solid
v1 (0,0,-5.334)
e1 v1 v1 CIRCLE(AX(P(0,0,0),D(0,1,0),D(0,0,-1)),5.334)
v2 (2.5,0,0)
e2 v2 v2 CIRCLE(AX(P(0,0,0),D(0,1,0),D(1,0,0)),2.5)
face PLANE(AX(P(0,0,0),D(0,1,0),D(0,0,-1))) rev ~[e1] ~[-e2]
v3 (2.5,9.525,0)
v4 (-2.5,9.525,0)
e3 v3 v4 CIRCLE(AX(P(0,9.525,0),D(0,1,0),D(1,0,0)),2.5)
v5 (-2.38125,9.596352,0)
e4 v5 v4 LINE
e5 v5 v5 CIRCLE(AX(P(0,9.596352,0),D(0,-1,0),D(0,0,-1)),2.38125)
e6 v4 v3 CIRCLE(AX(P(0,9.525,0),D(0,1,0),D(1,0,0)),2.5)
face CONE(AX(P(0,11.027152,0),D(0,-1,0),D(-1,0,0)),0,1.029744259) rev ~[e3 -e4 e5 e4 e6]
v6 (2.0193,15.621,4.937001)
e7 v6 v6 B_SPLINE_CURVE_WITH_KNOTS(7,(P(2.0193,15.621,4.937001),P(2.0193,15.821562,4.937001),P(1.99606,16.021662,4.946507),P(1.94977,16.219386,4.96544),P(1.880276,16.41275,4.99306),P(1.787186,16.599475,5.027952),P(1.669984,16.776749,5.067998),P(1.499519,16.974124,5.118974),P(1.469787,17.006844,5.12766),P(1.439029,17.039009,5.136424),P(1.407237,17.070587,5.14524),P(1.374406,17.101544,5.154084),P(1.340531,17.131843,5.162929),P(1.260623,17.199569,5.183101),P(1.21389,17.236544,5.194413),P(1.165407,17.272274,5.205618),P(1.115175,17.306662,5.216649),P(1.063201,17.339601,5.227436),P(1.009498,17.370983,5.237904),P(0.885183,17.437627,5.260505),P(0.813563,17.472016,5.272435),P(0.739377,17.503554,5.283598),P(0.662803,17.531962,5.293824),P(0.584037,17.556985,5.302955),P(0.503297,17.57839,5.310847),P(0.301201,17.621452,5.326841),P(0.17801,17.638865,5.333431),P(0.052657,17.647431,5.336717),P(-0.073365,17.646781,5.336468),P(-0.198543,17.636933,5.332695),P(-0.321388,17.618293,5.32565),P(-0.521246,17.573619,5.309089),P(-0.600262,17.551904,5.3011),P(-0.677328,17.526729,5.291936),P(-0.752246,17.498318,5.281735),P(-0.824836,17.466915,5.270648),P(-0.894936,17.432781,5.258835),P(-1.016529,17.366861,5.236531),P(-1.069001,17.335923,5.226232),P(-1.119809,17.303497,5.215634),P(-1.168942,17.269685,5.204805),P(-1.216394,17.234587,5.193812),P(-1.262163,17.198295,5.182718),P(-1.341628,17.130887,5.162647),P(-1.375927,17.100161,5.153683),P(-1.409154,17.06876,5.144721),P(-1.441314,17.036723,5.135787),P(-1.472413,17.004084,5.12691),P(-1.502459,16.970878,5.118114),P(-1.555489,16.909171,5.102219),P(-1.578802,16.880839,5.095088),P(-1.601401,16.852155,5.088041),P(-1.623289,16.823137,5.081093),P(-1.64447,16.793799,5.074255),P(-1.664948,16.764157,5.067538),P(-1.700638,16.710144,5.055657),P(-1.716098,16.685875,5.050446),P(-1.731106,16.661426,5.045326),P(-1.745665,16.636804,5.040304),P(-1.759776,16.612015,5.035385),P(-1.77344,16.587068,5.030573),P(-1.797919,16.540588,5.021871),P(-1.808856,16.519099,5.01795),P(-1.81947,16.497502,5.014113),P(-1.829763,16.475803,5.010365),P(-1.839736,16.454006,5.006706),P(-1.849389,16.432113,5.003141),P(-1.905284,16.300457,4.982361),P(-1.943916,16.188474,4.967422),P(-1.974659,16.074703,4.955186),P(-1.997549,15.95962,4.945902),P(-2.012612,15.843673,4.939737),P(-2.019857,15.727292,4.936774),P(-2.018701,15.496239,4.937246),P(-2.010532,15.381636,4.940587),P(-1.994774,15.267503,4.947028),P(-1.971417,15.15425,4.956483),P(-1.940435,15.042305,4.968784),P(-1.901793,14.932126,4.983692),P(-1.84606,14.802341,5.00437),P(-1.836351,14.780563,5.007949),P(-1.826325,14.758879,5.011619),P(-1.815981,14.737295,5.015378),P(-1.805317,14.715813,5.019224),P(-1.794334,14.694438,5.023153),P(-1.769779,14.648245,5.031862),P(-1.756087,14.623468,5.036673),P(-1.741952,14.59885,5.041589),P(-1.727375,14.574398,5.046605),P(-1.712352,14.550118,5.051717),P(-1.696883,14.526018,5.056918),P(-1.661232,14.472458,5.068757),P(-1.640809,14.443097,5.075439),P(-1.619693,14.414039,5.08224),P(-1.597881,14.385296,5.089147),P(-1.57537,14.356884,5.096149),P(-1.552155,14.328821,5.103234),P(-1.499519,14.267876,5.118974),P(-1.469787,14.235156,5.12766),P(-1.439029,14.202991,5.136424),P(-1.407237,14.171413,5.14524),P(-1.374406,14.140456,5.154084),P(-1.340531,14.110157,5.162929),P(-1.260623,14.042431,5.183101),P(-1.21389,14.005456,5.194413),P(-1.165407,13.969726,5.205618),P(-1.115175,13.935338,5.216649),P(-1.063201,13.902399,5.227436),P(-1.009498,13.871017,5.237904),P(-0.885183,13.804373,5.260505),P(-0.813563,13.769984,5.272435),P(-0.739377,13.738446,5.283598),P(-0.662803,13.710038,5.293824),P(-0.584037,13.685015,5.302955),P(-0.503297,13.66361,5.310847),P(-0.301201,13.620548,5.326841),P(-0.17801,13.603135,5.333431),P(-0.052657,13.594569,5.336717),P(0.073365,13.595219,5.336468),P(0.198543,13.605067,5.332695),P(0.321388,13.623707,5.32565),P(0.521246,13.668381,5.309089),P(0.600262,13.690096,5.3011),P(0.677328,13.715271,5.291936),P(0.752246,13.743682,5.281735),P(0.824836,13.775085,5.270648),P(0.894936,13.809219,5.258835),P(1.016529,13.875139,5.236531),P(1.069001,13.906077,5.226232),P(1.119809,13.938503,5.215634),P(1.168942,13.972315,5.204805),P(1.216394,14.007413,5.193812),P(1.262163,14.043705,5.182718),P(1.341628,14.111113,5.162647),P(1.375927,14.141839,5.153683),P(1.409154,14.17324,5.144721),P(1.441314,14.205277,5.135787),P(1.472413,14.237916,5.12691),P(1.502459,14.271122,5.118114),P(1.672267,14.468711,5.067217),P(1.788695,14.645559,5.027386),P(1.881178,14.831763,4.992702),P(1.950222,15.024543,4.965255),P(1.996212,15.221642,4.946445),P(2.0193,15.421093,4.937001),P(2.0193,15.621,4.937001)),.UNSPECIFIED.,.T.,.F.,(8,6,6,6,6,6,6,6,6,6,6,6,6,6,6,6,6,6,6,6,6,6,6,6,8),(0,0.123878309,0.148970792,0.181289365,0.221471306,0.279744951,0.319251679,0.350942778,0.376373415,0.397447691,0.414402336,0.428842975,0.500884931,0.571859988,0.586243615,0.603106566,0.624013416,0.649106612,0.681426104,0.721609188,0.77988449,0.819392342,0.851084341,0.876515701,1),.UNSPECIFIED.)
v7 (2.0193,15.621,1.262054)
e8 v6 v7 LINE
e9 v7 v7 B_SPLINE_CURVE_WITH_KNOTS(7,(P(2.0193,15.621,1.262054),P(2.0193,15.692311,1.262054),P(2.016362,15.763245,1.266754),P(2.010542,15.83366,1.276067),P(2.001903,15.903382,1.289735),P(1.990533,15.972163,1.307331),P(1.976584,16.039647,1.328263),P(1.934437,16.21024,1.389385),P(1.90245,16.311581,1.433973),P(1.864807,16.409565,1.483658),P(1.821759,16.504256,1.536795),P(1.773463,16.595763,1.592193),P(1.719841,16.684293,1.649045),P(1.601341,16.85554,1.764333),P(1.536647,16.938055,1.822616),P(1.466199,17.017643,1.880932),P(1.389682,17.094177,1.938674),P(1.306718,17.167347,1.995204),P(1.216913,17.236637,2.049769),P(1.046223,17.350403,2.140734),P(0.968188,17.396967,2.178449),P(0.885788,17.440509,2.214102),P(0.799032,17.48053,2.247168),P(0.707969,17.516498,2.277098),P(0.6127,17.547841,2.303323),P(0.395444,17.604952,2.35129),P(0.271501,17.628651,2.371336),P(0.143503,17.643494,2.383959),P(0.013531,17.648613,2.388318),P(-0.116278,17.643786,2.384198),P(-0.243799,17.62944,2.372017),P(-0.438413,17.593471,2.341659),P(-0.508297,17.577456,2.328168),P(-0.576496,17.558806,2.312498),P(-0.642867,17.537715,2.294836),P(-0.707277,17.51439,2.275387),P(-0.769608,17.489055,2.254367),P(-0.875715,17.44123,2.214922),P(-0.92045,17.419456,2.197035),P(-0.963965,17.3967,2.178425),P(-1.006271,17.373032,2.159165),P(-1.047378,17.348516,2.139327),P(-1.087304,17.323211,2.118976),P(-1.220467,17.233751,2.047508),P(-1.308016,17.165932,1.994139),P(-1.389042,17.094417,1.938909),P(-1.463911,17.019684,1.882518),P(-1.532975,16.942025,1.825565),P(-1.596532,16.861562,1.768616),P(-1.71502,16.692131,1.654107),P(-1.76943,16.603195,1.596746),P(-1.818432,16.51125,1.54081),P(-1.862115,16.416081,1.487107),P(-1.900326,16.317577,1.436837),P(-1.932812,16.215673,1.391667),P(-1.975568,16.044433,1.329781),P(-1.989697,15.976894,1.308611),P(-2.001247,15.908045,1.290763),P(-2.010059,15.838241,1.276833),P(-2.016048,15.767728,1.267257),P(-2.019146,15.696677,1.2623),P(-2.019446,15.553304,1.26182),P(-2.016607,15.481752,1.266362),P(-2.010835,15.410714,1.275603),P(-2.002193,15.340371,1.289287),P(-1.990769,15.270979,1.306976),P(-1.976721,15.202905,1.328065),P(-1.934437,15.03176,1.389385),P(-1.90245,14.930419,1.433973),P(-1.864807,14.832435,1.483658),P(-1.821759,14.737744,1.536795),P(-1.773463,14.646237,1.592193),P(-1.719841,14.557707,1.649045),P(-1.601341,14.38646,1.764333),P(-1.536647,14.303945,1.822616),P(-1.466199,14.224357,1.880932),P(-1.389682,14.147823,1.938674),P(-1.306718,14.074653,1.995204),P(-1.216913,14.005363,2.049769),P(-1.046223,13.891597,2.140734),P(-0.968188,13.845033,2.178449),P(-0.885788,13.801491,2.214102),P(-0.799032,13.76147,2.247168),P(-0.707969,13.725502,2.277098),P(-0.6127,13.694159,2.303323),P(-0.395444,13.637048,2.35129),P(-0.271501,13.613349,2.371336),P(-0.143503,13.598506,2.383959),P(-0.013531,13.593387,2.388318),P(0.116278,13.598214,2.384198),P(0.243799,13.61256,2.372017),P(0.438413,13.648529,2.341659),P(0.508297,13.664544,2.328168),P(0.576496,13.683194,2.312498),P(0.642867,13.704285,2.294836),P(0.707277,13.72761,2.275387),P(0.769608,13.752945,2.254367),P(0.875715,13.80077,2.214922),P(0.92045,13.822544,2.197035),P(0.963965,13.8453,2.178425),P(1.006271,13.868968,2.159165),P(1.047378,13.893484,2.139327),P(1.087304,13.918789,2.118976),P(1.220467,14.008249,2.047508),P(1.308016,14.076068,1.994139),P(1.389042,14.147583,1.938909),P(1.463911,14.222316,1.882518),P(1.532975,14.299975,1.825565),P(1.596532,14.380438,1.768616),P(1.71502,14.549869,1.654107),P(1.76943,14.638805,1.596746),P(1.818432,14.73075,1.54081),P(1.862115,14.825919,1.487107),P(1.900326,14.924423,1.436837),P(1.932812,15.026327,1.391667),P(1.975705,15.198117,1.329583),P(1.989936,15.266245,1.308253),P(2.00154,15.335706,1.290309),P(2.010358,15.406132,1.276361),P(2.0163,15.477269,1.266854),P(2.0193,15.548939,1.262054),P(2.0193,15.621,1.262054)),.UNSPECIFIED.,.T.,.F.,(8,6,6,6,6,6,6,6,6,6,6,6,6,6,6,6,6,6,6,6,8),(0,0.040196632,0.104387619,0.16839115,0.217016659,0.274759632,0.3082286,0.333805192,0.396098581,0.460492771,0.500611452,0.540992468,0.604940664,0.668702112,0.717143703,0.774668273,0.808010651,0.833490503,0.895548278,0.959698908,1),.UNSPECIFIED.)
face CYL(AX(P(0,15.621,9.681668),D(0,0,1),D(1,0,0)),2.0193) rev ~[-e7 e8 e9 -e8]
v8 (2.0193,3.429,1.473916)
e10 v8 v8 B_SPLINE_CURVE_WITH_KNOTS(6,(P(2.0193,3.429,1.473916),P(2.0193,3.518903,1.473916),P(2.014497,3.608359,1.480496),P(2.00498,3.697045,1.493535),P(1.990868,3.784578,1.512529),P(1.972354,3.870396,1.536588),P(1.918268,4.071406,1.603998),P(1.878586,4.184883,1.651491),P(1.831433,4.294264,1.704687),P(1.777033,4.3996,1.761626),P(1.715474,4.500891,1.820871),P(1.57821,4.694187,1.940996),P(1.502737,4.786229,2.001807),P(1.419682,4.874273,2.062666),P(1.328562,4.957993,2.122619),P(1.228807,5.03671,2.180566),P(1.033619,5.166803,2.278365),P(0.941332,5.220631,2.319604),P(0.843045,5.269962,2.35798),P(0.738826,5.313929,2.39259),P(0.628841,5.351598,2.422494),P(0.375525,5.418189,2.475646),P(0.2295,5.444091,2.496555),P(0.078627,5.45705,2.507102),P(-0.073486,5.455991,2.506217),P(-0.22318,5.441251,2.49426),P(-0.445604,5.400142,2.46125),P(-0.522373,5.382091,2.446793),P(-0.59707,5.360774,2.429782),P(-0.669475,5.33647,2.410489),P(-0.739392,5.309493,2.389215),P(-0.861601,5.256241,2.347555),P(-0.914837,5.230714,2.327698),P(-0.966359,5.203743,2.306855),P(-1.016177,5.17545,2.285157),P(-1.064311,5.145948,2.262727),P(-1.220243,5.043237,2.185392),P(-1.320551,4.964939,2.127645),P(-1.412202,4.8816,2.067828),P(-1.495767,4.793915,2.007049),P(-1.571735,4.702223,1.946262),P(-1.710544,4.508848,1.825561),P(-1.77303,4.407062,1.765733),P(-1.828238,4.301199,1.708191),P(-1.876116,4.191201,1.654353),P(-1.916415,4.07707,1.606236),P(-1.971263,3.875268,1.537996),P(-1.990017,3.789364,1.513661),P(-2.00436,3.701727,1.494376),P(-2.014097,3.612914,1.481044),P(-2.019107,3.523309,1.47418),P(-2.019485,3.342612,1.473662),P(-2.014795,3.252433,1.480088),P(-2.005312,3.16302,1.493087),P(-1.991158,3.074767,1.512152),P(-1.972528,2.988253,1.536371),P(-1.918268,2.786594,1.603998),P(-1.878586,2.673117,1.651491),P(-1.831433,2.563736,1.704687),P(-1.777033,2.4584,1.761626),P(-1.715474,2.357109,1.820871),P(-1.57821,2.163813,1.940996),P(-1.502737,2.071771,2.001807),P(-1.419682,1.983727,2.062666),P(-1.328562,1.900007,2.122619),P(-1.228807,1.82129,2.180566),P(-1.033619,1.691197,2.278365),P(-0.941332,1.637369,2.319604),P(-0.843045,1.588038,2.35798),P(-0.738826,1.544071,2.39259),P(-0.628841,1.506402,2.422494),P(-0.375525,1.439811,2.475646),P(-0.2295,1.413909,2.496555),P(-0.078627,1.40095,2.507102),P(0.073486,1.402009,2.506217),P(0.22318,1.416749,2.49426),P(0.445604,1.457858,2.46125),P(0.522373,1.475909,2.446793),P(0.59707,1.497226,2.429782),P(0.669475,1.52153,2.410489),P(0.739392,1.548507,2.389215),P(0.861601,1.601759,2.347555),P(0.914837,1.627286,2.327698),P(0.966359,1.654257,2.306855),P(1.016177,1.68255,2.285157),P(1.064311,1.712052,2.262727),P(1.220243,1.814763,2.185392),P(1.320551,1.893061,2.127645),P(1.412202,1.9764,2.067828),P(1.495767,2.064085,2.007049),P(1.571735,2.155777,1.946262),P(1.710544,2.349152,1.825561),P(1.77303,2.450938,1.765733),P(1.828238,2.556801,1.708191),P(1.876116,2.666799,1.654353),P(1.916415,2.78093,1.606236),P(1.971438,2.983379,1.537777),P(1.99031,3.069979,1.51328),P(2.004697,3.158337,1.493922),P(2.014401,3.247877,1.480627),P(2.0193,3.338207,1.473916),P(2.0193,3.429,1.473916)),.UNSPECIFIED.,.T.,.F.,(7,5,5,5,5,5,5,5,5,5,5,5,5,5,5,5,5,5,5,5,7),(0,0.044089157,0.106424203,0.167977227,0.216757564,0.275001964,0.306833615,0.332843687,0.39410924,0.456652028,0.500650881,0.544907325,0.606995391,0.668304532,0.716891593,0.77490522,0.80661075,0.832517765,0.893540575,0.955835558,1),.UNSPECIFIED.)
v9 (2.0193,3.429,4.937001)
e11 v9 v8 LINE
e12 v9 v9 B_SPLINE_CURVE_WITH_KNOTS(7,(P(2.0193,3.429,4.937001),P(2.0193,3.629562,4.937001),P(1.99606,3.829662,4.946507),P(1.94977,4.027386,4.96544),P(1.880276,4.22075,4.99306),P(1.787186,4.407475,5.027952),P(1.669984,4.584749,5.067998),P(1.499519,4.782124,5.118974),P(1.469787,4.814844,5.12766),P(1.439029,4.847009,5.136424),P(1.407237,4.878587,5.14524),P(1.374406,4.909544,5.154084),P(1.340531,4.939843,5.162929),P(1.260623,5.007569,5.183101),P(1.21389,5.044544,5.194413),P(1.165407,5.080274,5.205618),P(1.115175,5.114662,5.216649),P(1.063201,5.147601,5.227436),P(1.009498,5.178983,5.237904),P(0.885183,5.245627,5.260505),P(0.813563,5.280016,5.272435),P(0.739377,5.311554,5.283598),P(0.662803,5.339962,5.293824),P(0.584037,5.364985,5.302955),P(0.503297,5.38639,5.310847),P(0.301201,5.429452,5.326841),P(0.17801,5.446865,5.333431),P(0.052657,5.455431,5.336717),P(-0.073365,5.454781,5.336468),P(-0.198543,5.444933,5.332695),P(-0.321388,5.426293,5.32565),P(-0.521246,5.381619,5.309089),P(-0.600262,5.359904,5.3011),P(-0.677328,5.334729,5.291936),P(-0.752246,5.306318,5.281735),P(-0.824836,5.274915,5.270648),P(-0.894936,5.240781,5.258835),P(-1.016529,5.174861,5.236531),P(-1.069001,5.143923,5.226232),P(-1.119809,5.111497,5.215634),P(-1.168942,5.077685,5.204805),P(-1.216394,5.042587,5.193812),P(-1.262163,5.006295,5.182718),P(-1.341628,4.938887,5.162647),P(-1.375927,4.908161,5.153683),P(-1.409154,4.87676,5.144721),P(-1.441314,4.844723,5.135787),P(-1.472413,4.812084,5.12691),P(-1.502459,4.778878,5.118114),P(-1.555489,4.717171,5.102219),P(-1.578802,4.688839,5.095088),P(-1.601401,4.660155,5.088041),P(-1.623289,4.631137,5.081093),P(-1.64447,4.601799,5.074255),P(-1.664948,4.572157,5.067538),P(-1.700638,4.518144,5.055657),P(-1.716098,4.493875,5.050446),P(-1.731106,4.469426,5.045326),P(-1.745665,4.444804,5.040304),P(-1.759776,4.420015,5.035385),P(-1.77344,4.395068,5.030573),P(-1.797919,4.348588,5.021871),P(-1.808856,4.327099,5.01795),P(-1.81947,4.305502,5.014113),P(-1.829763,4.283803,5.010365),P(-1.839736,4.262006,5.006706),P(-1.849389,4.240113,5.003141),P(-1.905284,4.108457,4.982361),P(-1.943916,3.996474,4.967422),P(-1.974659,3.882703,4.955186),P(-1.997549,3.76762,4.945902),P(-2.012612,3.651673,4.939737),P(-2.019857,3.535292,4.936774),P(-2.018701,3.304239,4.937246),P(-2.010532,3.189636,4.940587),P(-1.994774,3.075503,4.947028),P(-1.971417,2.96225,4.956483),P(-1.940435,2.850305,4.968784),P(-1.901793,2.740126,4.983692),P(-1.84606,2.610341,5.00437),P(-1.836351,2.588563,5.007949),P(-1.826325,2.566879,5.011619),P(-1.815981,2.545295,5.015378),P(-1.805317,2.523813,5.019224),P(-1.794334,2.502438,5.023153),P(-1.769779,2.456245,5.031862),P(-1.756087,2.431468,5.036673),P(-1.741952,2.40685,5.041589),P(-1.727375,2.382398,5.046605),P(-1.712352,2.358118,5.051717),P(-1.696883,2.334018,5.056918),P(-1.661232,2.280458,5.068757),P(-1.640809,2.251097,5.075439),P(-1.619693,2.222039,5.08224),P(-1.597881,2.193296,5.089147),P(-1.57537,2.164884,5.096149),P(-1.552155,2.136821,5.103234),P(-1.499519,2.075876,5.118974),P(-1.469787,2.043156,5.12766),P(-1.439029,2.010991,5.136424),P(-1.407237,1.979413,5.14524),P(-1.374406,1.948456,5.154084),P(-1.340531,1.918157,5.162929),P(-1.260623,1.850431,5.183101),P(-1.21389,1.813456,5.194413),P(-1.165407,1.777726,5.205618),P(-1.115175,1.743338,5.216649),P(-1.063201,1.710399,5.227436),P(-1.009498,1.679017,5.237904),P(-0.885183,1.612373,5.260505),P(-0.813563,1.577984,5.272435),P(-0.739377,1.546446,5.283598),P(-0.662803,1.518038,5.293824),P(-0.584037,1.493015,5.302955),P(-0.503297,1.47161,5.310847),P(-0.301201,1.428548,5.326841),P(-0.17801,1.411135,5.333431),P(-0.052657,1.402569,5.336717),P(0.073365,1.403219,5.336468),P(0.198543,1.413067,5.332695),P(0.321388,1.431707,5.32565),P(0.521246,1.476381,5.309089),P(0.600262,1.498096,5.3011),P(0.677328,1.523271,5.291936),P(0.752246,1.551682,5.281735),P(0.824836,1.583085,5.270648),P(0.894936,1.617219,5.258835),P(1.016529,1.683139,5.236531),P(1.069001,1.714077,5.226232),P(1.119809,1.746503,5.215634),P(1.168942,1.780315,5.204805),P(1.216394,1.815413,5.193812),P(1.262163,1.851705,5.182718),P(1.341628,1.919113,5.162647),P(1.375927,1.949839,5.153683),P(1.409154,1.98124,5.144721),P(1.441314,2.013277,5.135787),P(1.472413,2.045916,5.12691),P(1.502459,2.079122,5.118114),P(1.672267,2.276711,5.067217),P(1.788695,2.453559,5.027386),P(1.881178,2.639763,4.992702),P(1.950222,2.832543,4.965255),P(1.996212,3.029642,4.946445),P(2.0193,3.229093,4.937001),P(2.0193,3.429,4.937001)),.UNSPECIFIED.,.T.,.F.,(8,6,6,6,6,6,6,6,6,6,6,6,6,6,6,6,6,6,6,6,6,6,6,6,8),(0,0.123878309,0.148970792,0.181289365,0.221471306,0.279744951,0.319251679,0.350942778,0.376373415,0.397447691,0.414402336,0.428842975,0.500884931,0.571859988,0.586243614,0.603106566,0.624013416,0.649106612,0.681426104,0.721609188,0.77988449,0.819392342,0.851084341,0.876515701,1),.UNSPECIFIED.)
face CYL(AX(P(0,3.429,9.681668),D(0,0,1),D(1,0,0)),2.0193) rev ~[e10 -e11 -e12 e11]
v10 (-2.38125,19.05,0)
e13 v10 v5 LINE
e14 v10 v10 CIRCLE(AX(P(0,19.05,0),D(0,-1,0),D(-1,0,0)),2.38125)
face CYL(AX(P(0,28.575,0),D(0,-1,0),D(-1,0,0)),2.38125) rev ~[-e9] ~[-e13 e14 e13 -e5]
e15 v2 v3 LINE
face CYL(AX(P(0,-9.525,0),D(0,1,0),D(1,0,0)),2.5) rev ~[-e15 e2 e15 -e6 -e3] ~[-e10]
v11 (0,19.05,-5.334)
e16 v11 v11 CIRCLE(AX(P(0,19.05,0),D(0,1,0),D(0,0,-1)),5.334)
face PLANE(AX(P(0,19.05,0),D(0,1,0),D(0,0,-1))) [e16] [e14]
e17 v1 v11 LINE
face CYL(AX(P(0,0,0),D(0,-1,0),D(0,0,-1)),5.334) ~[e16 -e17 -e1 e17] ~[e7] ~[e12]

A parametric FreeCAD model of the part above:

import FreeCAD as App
import Part
import Sketcher

V = App.Vector
Q = App.Units.Quantity

doc = App.newDocument("Part")
params = doc.addObject("Spreadsheet::Sheet", "Params")
for row, (alias, value) in enumerate([
    ("sketch1_diameter", "0.42 in"),
    ("pad1_length", "0.75 in"),
    ("sketch2_diameter", "0.1875 in"),
    ("hole_diameter", "0.1875 in"),
    ("hole_depth", "0.375 in"),
    ("hole2_diameter", "5 mm"),
    ("hole2_depth", "0.375 in"),
    ("sketch4_diameter", "0.159 in"),
    ("pocket1_length", "8.419615 mm"),
    ("sketch5_diameter", "0.159 in"),
    ("pocket2_length", "8.207753 mm"),
], start=1):
    params.set(f"A{row}", alias)
    params.set(f"B{row}", "=" + value)
    params.setAlias(f"B{row}", alias)

body = doc.addObject("PartDesign::Body", "Body")

sketch1 = body.newObject("Sketcher::SketchObject", "Sketch")
sketch1.AttachmentSupport = (doc.getObject("XZ_Plane"), [""])
sketch1.MapMode = "FlatFace"
sketch1.addGeometry(Part.Circle(V(0, 0, 0), V(0, 0, 1), 5.334), False)
sketch1.addConstraint(Sketcher.Constraint("Coincident", 0, 3, -1, 1))
sketch1.addConstraint(Sketcher.Constraint("Diameter", 0, Q("0.42 in")))
sketch1.setExpression("Constraints[1]", "Params.sketch1_diameter")
pad1 = body.newObject("PartDesign::Pad", "Pad")
pad1.Profile = sketch1
pad1.setExpression("Length", "Params.pad1_length")
pad1.Reversed = True

sketch2 = body.newObject("Sketcher::SketchObject", "Sketch001")
sketch2.AttachmentSupport = (doc.getObject("XZ_Plane"), [""])
sketch2.MapMode = "FlatFace"
sketch2.AttachmentOffset = App.Placement(V(0, 0, -0.75 * 25.4), App.Rotation())
sketch2.addGeometry(Part.Circle(V(0, 0, 0), V(0, 0, 1), 2.38125), False)
sketch2.addConstraint(Sketcher.Constraint("Coincident", 0, 3, -1, 1))
sketch2.addConstraint(Sketcher.Constraint("Diameter", 0, Q("0.1875 in")))
sketch2.setExpression("Constraints[1]", "Params.sketch2_diameter")
doc.recompute()
hole = body.newObject("PartDesign::Hole", "Hole")
hole.Profile = sketch2
hole.ThreadType = "None"
hole.setExpression("Diameter", "Params.hole_diameter")
hole.DepthType = "Dimension"
hole.setExpression("Depth", "Params.hole_depth")
hole.DrillPoint = "Angled"
hole.DrillPointAngle = 118
hole.Reversed = True

sketch3 = body.newObject("Sketcher::SketchObject", "Sketch002")
sketch3.AttachmentSupport = (doc.getObject("XZ_Plane"), [""])
sketch3.MapMode = "FlatFace"
sketch3.addGeometry(Part.Circle(V(0, 0, 0), V(0, 0, 1), 2.5), False)
sketch3.addConstraint(Sketcher.Constraint("Coincident", 0, 3, -1, 1))
sketch3.addConstraint(Sketcher.Constraint("Diameter", 0, 5.0))
doc.recompute()
hole2 = body.newObject("PartDesign::Hole", "Hole001")
hole2.Profile = sketch3
hole2.ThreadType = "None"
hole2.setExpression("Diameter", "Params.hole2_diameter")
hole2.DepthType = "Dimension"
hole2.setExpression("Depth", "Params.hole2_depth")
hole2.DrillPoint = "Angled"
hole2.DrillPointAngle = 118

sketch4 = body.newObject("Sketcher::SketchObject", "Sketch003")
sketch4.AttachmentSupport = (doc.getObject("XY_Plane"), [""])
sketch4.MapMode = "FlatFace"
sketch4.AttachmentOffset = App.Placement(V(0, 0, 9.681668), App.Rotation())
sketch4.addGeometry(Part.Circle(V(0, 15.621, 0), V(0, 0, 1), 2.0193), False)
sketch4.addConstraint(Sketcher.Constraint("PointOnObject", 0, 3, -2))
sketch4.addConstraint(Sketcher.Constraint("Diameter", 0, Q("0.159 in")))
sketch4.addConstraint(Sketcher.Constraint("DistanceY", -1, 1, 0, 3, Q("0.615 in")))
sketch4.setExpression("Constraints[1]", "Params.sketch4_diameter")
pocket1 = body.newObject("PartDesign::Pocket", "Pocket")
pocket1.Profile = sketch4
pocket1.setExpression("Length", "Params.pocket1_length")

sketch5 = body.newObject("Sketcher::SketchObject", "Sketch004")
sketch5.AttachmentSupport = (doc.getObject("XY_Plane"), [""])
sketch5.MapMode = "FlatFace"
sketch5.AttachmentOffset = App.Placement(V(0, 0, 9.681668), App.Rotation())
sketch5.addGeometry(Part.Circle(V(0, 3.429, 0), V(0, 0, 1), 2.0193), False)
sketch5.addConstraint(Sketcher.Constraint("PointOnObject", 0, 3, -2))
sketch5.addConstraint(Sketcher.Constraint("Diameter", 0, Q("0.159 in")))
sketch5.addConstraint(Sketcher.Constraint("DistanceY", -1, 1, 0, 3, Q("0.135 in")))
sketch5.setExpression("Constraints[1]", "Params.sketch5_diameter")
pocket2 = body.newObject("PartDesign::Pocket", "Pocket001")
pocket2.Profile = sketch5
pocket2.setExpression("Length", "Params.pocket2_length")

doc.recompute()
